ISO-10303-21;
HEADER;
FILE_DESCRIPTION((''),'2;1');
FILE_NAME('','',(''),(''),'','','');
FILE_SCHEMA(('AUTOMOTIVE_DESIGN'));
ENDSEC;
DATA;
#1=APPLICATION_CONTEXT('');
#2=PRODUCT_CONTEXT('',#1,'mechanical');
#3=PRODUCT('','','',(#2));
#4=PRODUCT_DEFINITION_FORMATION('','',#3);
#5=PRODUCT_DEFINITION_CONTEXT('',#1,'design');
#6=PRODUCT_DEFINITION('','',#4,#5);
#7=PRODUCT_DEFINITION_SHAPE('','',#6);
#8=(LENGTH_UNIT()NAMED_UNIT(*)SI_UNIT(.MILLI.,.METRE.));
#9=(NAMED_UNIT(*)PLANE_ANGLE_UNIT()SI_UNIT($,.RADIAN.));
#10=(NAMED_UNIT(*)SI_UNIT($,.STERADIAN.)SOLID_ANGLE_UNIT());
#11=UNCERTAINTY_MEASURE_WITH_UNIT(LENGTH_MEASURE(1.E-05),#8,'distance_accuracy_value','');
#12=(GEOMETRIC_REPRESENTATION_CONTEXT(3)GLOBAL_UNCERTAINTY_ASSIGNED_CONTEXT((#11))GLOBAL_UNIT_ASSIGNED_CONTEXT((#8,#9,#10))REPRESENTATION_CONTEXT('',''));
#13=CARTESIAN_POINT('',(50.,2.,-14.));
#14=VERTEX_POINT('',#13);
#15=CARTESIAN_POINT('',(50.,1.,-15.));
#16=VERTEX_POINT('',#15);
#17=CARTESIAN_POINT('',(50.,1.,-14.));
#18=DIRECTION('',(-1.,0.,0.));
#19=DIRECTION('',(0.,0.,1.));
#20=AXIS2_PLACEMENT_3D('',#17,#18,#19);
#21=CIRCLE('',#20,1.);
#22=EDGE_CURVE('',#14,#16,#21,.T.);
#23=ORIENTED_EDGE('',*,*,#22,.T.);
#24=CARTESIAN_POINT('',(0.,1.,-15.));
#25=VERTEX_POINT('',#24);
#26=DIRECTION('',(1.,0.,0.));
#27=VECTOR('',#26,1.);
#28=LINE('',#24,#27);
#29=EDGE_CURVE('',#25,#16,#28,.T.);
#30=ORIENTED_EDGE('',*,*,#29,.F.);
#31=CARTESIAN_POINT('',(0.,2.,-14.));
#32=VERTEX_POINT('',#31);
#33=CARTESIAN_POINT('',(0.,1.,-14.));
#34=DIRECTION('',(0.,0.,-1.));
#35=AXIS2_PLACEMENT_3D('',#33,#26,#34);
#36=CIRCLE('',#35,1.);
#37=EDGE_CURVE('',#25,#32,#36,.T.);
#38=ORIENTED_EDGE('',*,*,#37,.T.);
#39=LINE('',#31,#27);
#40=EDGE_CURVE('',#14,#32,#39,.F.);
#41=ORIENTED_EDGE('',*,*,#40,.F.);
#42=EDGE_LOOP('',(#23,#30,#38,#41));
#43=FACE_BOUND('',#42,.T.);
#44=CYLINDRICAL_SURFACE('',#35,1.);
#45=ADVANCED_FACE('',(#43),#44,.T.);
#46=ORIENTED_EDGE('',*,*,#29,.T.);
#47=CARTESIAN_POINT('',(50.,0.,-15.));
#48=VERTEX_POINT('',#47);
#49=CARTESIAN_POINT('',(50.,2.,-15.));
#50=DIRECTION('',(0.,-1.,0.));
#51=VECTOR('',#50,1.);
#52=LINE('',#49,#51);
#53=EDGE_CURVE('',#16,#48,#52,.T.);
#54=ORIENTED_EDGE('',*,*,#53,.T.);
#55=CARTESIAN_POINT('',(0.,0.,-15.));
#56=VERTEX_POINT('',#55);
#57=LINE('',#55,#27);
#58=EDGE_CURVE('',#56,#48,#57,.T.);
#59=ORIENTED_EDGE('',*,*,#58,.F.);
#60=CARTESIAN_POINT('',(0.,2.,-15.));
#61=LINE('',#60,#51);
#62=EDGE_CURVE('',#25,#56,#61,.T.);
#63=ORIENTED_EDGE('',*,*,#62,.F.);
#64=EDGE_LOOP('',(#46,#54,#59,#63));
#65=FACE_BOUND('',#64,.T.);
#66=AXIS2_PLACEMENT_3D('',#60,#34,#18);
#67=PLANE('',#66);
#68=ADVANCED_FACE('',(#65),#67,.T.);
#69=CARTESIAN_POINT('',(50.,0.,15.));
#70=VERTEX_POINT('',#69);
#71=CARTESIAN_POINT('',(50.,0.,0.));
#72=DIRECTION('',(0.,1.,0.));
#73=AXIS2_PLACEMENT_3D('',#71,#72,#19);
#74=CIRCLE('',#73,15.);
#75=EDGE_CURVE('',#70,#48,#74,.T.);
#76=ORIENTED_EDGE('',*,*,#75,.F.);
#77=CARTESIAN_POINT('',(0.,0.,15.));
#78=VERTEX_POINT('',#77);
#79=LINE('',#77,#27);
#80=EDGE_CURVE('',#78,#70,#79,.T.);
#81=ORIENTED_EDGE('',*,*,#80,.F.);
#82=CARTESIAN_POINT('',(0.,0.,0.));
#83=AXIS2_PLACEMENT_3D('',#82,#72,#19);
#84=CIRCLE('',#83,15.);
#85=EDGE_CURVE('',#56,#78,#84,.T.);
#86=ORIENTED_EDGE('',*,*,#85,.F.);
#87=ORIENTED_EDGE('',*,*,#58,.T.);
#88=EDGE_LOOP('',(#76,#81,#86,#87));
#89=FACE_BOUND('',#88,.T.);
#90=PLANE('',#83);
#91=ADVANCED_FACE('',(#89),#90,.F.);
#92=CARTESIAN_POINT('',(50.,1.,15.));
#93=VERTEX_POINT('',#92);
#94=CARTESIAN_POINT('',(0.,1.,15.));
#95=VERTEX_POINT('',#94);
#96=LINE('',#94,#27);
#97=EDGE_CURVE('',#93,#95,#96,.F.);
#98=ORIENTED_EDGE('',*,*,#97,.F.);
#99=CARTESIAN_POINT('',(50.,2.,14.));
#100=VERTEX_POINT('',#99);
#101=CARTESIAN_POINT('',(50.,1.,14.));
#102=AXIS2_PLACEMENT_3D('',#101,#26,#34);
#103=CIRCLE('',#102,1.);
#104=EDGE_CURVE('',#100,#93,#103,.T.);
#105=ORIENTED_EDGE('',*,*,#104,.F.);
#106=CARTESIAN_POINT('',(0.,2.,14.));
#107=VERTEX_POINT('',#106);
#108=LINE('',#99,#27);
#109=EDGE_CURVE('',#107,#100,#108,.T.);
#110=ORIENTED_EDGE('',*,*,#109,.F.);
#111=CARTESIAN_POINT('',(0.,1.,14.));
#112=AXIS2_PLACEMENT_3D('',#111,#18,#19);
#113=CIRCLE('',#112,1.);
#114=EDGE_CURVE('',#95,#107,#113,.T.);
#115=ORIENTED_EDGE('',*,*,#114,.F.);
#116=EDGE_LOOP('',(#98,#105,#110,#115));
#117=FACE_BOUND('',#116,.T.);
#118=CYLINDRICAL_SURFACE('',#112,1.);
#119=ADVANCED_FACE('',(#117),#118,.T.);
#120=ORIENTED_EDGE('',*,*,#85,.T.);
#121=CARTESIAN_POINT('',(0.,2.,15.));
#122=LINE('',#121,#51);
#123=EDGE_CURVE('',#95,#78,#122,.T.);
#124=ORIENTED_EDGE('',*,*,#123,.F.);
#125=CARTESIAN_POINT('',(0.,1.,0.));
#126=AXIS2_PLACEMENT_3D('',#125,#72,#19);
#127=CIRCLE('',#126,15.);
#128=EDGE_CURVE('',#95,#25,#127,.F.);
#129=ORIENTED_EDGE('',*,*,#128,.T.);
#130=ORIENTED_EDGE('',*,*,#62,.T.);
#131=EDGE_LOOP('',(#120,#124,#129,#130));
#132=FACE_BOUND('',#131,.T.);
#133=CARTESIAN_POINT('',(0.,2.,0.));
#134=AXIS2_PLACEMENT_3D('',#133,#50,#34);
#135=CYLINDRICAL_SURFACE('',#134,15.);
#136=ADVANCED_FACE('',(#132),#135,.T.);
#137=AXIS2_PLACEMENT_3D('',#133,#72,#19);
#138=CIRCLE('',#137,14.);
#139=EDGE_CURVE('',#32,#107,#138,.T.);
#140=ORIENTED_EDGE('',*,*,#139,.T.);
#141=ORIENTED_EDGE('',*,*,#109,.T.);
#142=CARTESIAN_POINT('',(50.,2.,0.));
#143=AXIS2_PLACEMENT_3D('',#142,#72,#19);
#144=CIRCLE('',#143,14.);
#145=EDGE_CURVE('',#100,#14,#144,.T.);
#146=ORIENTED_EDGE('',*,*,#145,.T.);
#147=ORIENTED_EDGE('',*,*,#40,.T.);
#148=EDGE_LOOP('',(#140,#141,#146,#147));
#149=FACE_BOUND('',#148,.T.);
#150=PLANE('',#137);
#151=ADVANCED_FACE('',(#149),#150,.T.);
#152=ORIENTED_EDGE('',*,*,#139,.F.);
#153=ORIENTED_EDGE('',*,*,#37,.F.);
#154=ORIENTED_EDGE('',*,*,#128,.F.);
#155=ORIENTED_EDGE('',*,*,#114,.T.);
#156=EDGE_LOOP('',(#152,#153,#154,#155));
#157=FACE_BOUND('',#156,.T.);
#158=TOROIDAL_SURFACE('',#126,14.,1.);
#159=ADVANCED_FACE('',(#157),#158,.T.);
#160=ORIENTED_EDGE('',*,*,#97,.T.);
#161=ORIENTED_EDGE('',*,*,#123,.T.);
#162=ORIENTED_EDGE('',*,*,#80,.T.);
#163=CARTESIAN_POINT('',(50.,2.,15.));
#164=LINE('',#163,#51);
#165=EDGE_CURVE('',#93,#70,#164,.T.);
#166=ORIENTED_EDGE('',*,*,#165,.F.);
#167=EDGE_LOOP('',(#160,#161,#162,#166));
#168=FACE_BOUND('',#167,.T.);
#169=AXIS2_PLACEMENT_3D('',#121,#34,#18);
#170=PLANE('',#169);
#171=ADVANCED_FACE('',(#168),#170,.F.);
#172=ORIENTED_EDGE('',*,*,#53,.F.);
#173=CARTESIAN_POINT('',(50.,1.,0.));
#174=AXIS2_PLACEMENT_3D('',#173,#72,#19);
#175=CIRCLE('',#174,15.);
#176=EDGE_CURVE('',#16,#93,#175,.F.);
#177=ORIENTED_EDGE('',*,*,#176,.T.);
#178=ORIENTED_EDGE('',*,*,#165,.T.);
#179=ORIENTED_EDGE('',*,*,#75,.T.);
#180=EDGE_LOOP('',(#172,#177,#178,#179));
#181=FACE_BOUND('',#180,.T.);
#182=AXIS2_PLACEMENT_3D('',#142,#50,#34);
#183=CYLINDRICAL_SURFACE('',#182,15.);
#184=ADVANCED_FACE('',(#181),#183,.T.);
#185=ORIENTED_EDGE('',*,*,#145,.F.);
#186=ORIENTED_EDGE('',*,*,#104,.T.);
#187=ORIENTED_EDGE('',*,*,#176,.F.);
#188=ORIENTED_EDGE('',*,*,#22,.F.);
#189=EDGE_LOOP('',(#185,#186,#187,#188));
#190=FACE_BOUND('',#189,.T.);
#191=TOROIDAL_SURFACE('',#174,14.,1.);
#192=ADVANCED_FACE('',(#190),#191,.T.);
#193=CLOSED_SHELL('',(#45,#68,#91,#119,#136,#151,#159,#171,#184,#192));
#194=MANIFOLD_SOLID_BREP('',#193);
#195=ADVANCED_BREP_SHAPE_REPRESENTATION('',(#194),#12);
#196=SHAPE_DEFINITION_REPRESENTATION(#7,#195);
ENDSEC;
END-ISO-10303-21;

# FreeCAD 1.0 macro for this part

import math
import FreeCAD as App
import Part
import Sketcher


def edges_at(feature, points):
    """Names of the edges that pass closest to the given points."""
    edges = feature.Shape.Edges
    near = lambda p: min(range(len(edges)), key=lambda i: edges[i].distToShape(Part.Vertex(*p))[0])
    return sorted({f"Edge{near(p) + 1}" for p in points})

doc = App.newDocument("Part")
params = doc.addObject("Spreadsheet::Sheet", "Params")
for row, (alias, value) in enumerate([
    ("sketch1_radius", "15 mm"),
    ("sketch1_width", "50 mm"),
    ("pad1_length", "2 mm"),
    ("fillet_radius", "1 mm"),
], start=1):
    params.set(f"A{row}", alias)
    params.set(f"B{row}", "=" + value)
    params.setAlias(f"B{row}", alias)

body = doc.addObject("PartDesign::Body", "Body")

# Sketch on XZ plane
sketch1 = doc.addObject("Sketcher::SketchObject", "Sketch")
body.addObject(sketch1)
sketch1.AttachmentSupport = (doc.XZ_Plane, [""])
sketch1.MapMode = "FlatFace"
sketch1.addGeometry([
    Part.LineSegment(App.Vector(50, -15, 0), App.Vector(0, -15, 0)),
    Part.ArcOfCircle(Part.Circle(App.Vector(0, 0, 0), App.Vector(0, 0, 1), 15), math.radians(90), math.radians(270)),
    Part.LineSegment(App.Vector(0, 15, 0), App.Vector(50, 15, 0)),
    Part.ArcOfCircle(Part.Circle(App.Vector(50, 0, 0), App.Vector(0, 0, 1), 15), math.radians(-90), math.radians(90)),
], False)
sketch1.addConstraint([
    Sketcher.Constraint("Tangent", 0, 2, 1, 2),
    Sketcher.Constraint("Tangent", 1, 1, 2, 1),
    Sketcher.Constraint("Tangent", 2, 2, 3, 2),
    Sketcher.Constraint("Tangent", 3, 1, 0, 1),
    Sketcher.Constraint("Horizontal", 0),
    Sketcher.Constraint("Horizontal", 2),
    Sketcher.Constraint("Coincident", 1, 3, -1, 1),
    Sketcher.Constraint("Radius", 1, 15.0),
    Sketcher.Constraint("DistanceX", 0, 2, 0, 1, 50.0),
])
sketch1.setExpression("Constraints[7]", "Params.sketch1_radius")
sketch1.setExpression("Constraints[8]", "Params.sketch1_width")
pad1 = doc.addObject("PartDesign::Pad", "Pad")
body.addObject(pad1)
pad1.Profile = sketch1
pad1.setExpression("Length", "Params.pad1_length")
pad1.Reversed = True
doc.recompute()

fillet = doc.addObject("PartDesign::Fillet", "Fillet")
body.addObject(fillet)
fillet.Base = (pad1, edges_at(pad1, [
    (65, 2, 0),
    (25, 2, -15),
    (-15, 2, 0),
    (25, 2, 15),
]))
fillet.setExpression("Radius", "Params.fillet_radius")

doc.recompute()
